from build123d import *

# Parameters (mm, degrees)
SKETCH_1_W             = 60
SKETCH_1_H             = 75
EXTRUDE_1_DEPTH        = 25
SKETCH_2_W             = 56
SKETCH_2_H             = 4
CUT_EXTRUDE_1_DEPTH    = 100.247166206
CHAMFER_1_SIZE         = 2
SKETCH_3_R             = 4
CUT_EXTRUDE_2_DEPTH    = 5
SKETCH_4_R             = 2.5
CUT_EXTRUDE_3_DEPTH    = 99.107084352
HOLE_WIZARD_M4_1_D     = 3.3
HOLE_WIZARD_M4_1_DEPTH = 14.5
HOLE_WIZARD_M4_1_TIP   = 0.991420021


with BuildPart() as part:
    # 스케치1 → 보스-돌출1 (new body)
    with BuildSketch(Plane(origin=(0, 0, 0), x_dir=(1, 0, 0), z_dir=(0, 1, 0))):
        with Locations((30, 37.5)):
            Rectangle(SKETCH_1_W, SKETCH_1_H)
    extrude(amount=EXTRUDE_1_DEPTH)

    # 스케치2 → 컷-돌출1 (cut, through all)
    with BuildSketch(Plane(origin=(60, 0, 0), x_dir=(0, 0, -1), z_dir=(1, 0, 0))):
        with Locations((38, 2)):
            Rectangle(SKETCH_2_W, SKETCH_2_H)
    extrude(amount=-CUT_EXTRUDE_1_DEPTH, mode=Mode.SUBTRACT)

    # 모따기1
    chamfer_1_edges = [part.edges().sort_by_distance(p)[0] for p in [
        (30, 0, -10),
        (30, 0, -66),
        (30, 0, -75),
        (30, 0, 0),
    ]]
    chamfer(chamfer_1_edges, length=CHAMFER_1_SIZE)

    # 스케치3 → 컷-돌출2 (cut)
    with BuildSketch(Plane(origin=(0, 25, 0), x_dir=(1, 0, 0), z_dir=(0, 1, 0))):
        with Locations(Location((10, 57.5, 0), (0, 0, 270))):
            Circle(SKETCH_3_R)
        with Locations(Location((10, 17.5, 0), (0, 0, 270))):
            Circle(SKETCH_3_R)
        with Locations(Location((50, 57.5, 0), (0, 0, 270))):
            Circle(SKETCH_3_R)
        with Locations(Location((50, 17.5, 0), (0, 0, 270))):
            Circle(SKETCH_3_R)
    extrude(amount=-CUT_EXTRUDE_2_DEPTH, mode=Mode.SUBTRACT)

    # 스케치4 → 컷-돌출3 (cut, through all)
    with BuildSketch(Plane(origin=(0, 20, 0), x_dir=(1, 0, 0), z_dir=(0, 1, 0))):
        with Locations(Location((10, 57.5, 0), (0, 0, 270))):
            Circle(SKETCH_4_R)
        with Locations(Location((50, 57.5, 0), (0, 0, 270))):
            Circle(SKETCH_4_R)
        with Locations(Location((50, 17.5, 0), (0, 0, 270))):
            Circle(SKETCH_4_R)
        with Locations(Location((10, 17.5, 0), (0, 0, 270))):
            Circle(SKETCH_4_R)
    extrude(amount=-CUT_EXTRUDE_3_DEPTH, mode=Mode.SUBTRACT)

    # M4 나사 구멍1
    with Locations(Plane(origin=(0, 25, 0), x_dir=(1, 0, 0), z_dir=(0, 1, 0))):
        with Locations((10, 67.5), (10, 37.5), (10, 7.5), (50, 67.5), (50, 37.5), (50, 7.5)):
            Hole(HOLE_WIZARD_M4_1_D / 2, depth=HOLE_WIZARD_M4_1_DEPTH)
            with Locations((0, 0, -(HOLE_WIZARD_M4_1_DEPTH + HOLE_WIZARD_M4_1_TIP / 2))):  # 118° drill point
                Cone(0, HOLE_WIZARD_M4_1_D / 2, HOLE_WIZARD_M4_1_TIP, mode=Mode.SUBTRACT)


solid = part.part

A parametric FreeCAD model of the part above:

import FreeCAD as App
import Part
import Sketcher

V = App.Vector
Q = App.Units.Quantity


def edges_at(feature, points):
    """Names of the edges that pass closest to the given points."""
    edges = feature.Shape.Edges
    near = lambda p: min(range(len(edges)), key=lambda i: edges[i].distToShape(Part.Vertex(*p))[0])
    return sorted({f"Edge{near(p) + 1}" for p in points})

doc = App.newDocument("Part")
body = doc.addObject("PartDesign::Body", "Body")

sketch1 = body.newObject("Sketcher::SketchObject", "Sketch")
sketch1.AttachmentSupport = (doc.getObject("XZ_Plane"), [""])
sketch1.MapMode = "FlatFace"
sketch1.addGeometry(Part.LineSegment(V(0, -75, 0), V(0, 0, 0)), False)
sketch1.addGeometry(Part.LineSegment(V(0, 0, 0), V(60, 0, 0)), False)
sketch1.addGeometry(Part.LineSegment(V(60, 0, 0), V(60, -75, 0)), False)
sketch1.addGeometry(Part.LineSegment(V(60, -75, 0), V(0, -75, 0)), False)
sketch1.addConstraint(Sketcher.Constraint("Coincident", 0, 2, 1, 1))
sketch1.addConstraint(Sketcher.Constraint("Coincident", 1, 2, 2, 1))
sketch1.addConstraint(Sketcher.Constraint("Coincident", 2, 2, 3, 1))
sketch1.addConstraint(Sketcher.Constraint("Coincident", 3, 2, 0, 1))
sketch1.addConstraint(Sketcher.Constraint("Vertical", 0))
sketch1.addConstraint(Sketcher.Constraint("Horizontal", 1))
sketch1.addConstraint(Sketcher.Constraint("Vertical", 2))
sketch1.addConstraint(Sketcher.Constraint("Horizontal", 3))
sketch1.addConstraint(Sketcher.Constraint("Coincident", 0, 2, -1, 1))
sketch1.addConstraint(Sketcher.Constraint("DistanceX", 1, 1, 1, 2, Q("60 mm")))
sketch1.addConstraint(Sketcher.Constraint("DistanceY", 0, 1, 0, 2, Q("75 mm")))
pad1 = body.newObject("PartDesign::Pad", "Pad")
pad1.Profile = sketch1
pad1.Length = 25
pad1.Reversed = True

sketch2 = body.newObject("Sketcher::SketchObject", "Sketch001")
sketch2.AttachmentSupport = (doc.getObject("YZ_Plane"), [""])
sketch2.MapMode = "FlatFace"
sketch2.AttachmentOffset = App.Placement(V(0, 0, 60), App.Rotation())
sketch2.addGeometry(Part.LineSegment(V(4, -10, 0), V(0, -10, 0)), False)
sketch2.addGeometry(Part.LineSegment(V(0, -10, 0), V(0, -66, 0)), False)
sketch2.addGeometry(Part.LineSegment(V(0, -66, 0), V(4, -66, 0)), False)
sketch2.addGeometry(Part.LineSegment(V(4, -66, 0), V(4, -10, 0)), False)
sketch2.addConstraint(Sketcher.Constraint("Coincident", 0, 2, 1, 1))
sketch2.addConstraint(Sketcher.Constraint("Coincident", 1, 2, 2, 1))
sketch2.addConstraint(Sketcher.Constraint("Coincident", 2, 2, 3, 1))
sketch2.addConstraint(Sketcher.Constraint("Coincident", 3, 2, 0, 1))
sketch2.addConstraint(Sketcher.Constraint("Horizontal", 0))
sketch2.addConstraint(Sketcher.Constraint("Vertical", 1))
sketch2.addConstraint(Sketcher.Constraint("Horizontal", 2))
sketch2.addConstraint(Sketcher.Constraint("Vertical", 3))
sketch2.addConstraint(Sketcher.Constraint("PointOnObject", 0, 2, -2))
sketch2.addConstraint(Sketcher.Constraint("DistanceX", 0, 2, 0, 1, Q("4 mm")))
sketch2.addConstraint(Sketcher.Constraint("DistanceY", 1, 2, 1, 1, Q("56 mm")))
sketch2.addConstraint(Sketcher.Constraint("DistanceY", 0, 2, -1, 1, Q("10 mm")))
pocket1 = body.newObject("PartDesign::Pocket", "Pocket")
pocket1.Profile = sketch2
pocket1.Type = "ThroughAll"
doc.recompute()

chamfer = body.newObject("PartDesign::Chamfer", "Chamfer")
chamfer.Base = (pocket1, edges_at(pocket1, [
    (30, 0, -10),
    (30, 0, -66),
    (30, 0, -75),
    (30, 0, 0),
]))
chamfer.Size = 2

sketch3 = body.newObject("Sketcher::SketchObject", "Sketch002")
sketch3.AttachmentSupport = (doc.getObject("XZ_Plane"), [""])
sketch3.MapMode = "FlatFace"
sketch3.AttachmentOffset = App.Placement(V(0, 0, -25), App.Rotation())
sketch3.addGeometry(Part.Circle(V(10, -57.5, 0), V(0, 0, 1), 4), False)
sketch3.addGeometry(Part.Circle(V(10, -17.5, 0), V(0, 0, 1), 4), False)
sketch3.addGeometry(Part.Circle(V(50, -57.5, 0), V(0, 0, 1), 4), False)
sketch3.addGeometry(Part.Circle(V(50, -17.5, 0), V(0, 0, 1), 4), False)
sketch3.addConstraint(Sketcher.Constraint("Equal", 0, 1))
sketch3.addConstraint(Sketcher.Constraint("Equal", 1, 2))
sketch3.addConstraint(Sketcher.Constraint("Equal", 2, 3))
sketch3.addConstraint(Sketcher.Constraint("Horizontal", 0, 3, 2, 3))
sketch3.addConstraint(Sketcher.Constraint("Horizontal", 1, 3, 3, 3))
sketch3.addConstraint(Sketcher.Constraint("Vertical", 0, 3, 1, 3))
sketch3.addConstraint(Sketcher.Constraint("Vertical", 2, 3, 3, 3))
sketch3.addConstraint(Sketcher.Constraint("Diameter", 0, Q("8 mm")))
sketch3.addConstraint(Sketcher.Constraint("DistanceX", -1, 1, 0, 3, Q("10 mm")))
sketch3.addConstraint(Sketcher.Constraint("DistanceX", -1, 1, 2, 3, Q("50 mm")))
sketch3.addConstraint(Sketcher.Constraint("DistanceY", 0, 3, 1, 3, Q("40 mm")))
sketch3.addConstraint(Sketcher.Constraint("DistanceY", 0, 3, -1, 1, Q("57.5 mm")))
pocket2 = body.newObject("PartDesign::Pocket", "Pocket001")
pocket2.Profile = sketch3
pocket2.Length = 5
pocket2.Reversed = True

sketch4 = body.newObject("Sketcher::SketchObject", "Sketch003")
sketch4.AttachmentSupport = (doc.getObject("XZ_Plane"), [""])
sketch4.MapMode = "FlatFace"
sketch4.AttachmentOffset = App.Placement(V(0, 0, -20), App.Rotation())
sketch4.addGeometry(Part.Circle(V(10, -57.5, 0), V(0, 0, 1), 2.5), False)
sketch4.addGeometry(Part.Circle(V(50, -57.5, 0), V(0, 0, 1), 2.5), False)
sketch4.addGeometry(Part.Circle(V(50, -17.5, 0), V(0, 0, 1), 2.5), False)
sketch4.addGeometry(Part.Circle(V(10, -17.5, 0), V(0, 0, 1), 2.5), False)
sketch4.addConstraint(Sketcher.Constraint("Equal", 0, 1))
sketch4.addConstraint(Sketcher.Constraint("Equal", 1, 2))
sketch4.addConstraint(Sketcher.Constraint("Equal", 2, 3))
sketch4.addConstraint(Sketcher.Constraint("Horizontal", 0, 3, 1, 3))
sketch4.addConstraint(Sketcher.Constraint("Horizontal", 2, 3, 3, 3))
sketch4.addConstraint(Sketcher.Constraint("Vertical", 1, 3, 2, 3))
sketch4.addConstraint(Sketcher.Constraint("Vertical", 0, 3, 3, 3))
sketch4.addConstraint(Sketcher.Constraint("Diameter", 0, Q("5 mm")))
sketch4.addConstraint(Sketcher.Constraint("DistanceX", -1, 1, 0, 3, Q("10 mm")))
sketch4.addConstraint(Sketcher.Constraint("DistanceX", -1, 1, 1, 3, Q("50 mm")))
sketch4.addConstraint(Sketcher.Constraint("DistanceY", 1, 3, 2, 3, Q("40 mm")))
sketch4.addConstraint(Sketcher.Constraint("DistanceY", 0, 3, -1, 1, Q("57.5 mm")))
pocket3 = body.newObject("PartDesign::Pocket", "Pocket002")
pocket3.Profile = sketch4
pocket3.Type = "ThroughAll"
pocket3.Reversed = True

sketch5 = body.newObject("Sketcher::SketchObject", "Sketch004")
sketch5.AttachmentSupport = (doc.getObject("XZ_Plane"), [""])
sketch5.MapMode = "FlatFace"
sketch5.AttachmentOffset = App.Placement(V(0, 0, -25), App.Rotation())
sketch5.addGeometry(Part.Circle(V(10, -67.5, 0), V(0, 0, 1), 1.65), False)
sketch5.addGeometry(Part.Circle(V(10, -37.5, 0), V(0, 0, 1), 1.65), False)
sketch5.addGeometry(Part.Circle(V(10, -7.5, 0), V(0, 0, 1), 1.65), False)
sketch5.addGeometry(Part.Circle(V(50, -67.5, 0), V(0, 0, 1), 1.65), False)
sketch5.addGeometry(Part.Circle(V(50, -37.5, 0), V(0, 0, 1), 1.65), False)
sketch5.addGeometry(Part.Circle(V(50, -7.5, 0), V(0, 0, 1), 1.65), False)
sketch5.addConstraint(Sketcher.Constraint("Equal", 0, 1))
sketch5.addConstraint(Sketcher.Constraint("Equal", 1, 2))
sketch5.addConstraint(Sketcher.Constraint("Equal", 2, 3))
sketch5.addConstraint(Sketcher.Constraint("Equal", 3, 4))
sketch5.addConstraint(Sketcher.Constraint("Equal", 4, 5))
sketch5.addConstraint(Sketcher.Constraint("Horizontal", 0, 3, 3, 3))
sketch5.addConstraint(Sketcher.Constraint("Horizontal", 1, 3, 4, 3))
sketch5.addConstraint(Sketcher.Constraint("Horizontal", 2, 3, 5, 3))
sketch5.addConstraint(Sketcher.Constraint("Vertical", 0, 3, 1, 3))
sketch5.addConstraint(Sketcher.Constraint("Vertical", 1, 3, 2, 3))
sketch5.addConstraint(Sketcher.Constraint("Vertical", 3, 3, 4, 3))
sketch5.addConstraint(Sketcher.Constraint("Vertical", 4, 3, 5, 3))
sketch5.addConstraint(Sketcher.Constraint("Diameter", 0, Q("3.3 mm")))
sketch5.addConstraint(Sketcher.Constraint("DistanceX", -1, 1, 0, 3, Q("10 mm")))
sketch5.addConstraint(Sketcher.Constraint("DistanceX", -1, 1, 3, 3, Q("50 mm")))
sketch5.addConstraint(Sketcher.Constraint("DistanceY", 0, 3, 1, 3, Q("30 mm")))
sketch5.addConstraint(Sketcher.Constraint("DistanceY", 1, 3, 2, 3, Q("30 mm")))
sketch5.addConstraint(Sketcher.Constraint("DistanceY", 0, 3, -1, 1, Q("67.5 mm")))
doc.recompute()
hole = body.newObject("PartDesign::Hole", "Hole")
hole.Profile = sketch5
hole.ThreadType = "None"
hole.Diameter = 3.3
hole.DepthType = "Dimension"
hole.Depth = 14.5
hole.DrillPoint = "Angled"
hole.DrillPointAngle = 118
hole.Reversed = True

doc.recompute()
